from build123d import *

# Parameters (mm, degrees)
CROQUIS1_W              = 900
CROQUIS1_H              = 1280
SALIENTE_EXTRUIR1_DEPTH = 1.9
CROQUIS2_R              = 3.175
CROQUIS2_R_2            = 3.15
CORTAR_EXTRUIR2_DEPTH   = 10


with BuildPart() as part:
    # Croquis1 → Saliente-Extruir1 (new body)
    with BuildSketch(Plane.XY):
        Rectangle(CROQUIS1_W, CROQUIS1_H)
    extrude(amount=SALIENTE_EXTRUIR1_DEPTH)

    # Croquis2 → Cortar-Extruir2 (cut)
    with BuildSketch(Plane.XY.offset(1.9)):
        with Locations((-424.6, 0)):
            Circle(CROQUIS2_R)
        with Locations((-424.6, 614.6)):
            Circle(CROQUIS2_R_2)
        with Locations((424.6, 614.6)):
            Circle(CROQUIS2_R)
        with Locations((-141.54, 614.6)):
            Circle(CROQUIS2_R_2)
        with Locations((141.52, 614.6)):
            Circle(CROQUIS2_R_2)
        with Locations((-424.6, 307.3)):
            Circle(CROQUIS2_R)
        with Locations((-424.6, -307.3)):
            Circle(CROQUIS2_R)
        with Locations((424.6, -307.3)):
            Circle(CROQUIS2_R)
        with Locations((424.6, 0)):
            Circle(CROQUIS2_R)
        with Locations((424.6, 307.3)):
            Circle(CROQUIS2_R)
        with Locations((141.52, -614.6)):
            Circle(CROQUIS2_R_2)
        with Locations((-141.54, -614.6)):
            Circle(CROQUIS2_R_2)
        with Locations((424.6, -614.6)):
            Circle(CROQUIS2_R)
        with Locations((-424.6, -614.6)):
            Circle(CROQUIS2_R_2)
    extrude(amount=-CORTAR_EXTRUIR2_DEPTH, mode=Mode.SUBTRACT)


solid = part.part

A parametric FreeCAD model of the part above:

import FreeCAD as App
import Part
import Sketcher

V = App.Vector
Q = App.Units.Quantity


def add_polygon(sketch, points):
    """Adds a closed chain of lines whose ends are joined by coincident constraints."""
    first, n = sketch.GeometryCount, len(points)
    for a, b in zip(points, points[1:] + points[:1]):
        sketch.addGeometry(Part.LineSegment(App.Vector(*a, 0), App.Vector(*b, 0)), False)
    for i in range(n):
        sketch.addConstraint(Sketcher.Constraint("Coincident", first + i, 2, first + (i + 1) % n, 1))

doc = App.newDocument("Part")
body = doc.addObject("PartDesign::Body", "Body")

# Sketch on XY plane
sketch1 = doc.addObject("Sketcher::SketchObject", "Sketch")
body.addObject(sketch1)
sketch1.AttachmentSupport = (doc.XY_Plane, [""])
sketch1.MapMode = "FlatFace"
add_polygon(sketch1, [(-450, 640), (-450, -640), (450, -640), (450, 640)])  # lines 0-3
sketch1.addConstraint([
    Sketcher.Constraint("Vertical", 0),
    Sketcher.Constraint("Horizontal", 1),
    Sketcher.Constraint("Vertical", 2),
    Sketcher.Constraint("Horizontal", 3),
    Sketcher.Constraint("Symmetric", 0, 2, 2, 2, -1, 1),
    Sketcher.Constraint("DistanceX", 1, 1, 1, 2, Q("900 mm")),
    Sketcher.Constraint("DistanceY", 0, 2, 0, 1, Q("1280 mm")),
])
pad1 = doc.addObject("PartDesign::Pad", "Pad")
body.addObject(pad1)
pad1.Profile = sketch1
pad1.Length = 1.9

# Sketch on XY plane
sketch2 = doc.addObject("Sketcher::SketchObject", "Sketch001")
body.addObject(sketch2)
sketch2.AttachmentSupport = (doc.XY_Plane, [""])
sketch2.MapMode = "FlatFace"
sketch2.AttachmentOffset = App.Placement(V(0, 0, 1.9), App.Rotation())
sketch2.addGeometry([
    Part.Circle(V(-424.6, 0, 0), V(0, 0, 1), 3.2),  # 0
    Part.Circle(V(-424.6, 614.6, 0), V(0, 0, 1), 3.1),  # 1
    Part.Circle(V(424.6, 614.6, 0), V(0, 0, 1), 3.2),  # 2
    Part.Circle(V(-141.5, 614.6, 0), V(0, 0, 1), 3.1),  # 3
    Part.Circle(V(141.5, 614.6, 0), V(0, 0, 1), 3.1),  # 4
    Part.Circle(V(-424.6, 307.3, 0), V(0, 0, 1), 3.2),  # 5
    Part.Circle(V(-424.6, -307.3, 0), V(0, 0, 1), 3.2),  # 6
    Part.Circle(V(424.6, -307.3, 0), V(0, 0, 1), 3.2),  # 7
    Part.Circle(V(424.6, 0, 0), V(0, 0, 1), 3.2),  # 8
    Part.Circle(V(424.6, 307.3, 0), V(0, 0, 1), 3.2),  # 9
    Part.Circle(V(141.5, -614.6, 0), V(0, 0, 1), 3.1),  # 10
    Part.Circle(V(-141.5, -614.6, 0), V(0, 0, 1), 3.1),  # 11
    Part.Circle(V(424.6, -614.6, 0), V(0, 0, 1), 3.2),  # 12
    Part.Circle(V(-424.6, -614.6, 0), V(0, 0, 1), 3.1),  # 13
], False)
sketch2.addConstraint([
    Sketcher.Constraint("Equal", 0, 2),
    Sketcher.Constraint("Equal", 1, 3),
    Sketcher.Constraint("Equal", 3, 4),
    Sketcher.Constraint("Equal", 2, 5),
    Sketcher.Constraint("Equal", 5, 6),
    Sketcher.Constraint("Equal", 6, 7),
    Sketcher.Constraint("Equal", 7, 8),
    Sketcher.Constraint("Equal", 8, 9),
    Sketcher.Constraint("Equal", 4, 10),
    Sketcher.Constraint("Equal", 10, 11),
    Sketcher.Constraint("Equal", 9, 12),
    Sketcher.Constraint("Equal", 11, 13),
    Sketcher.Constraint("Symmetric", 5, 3, 7, 3, -1, 1),
    Sketcher.Constraint("Symmetric", 0, 3, 8, 3, -1, 1),
    Sketcher.Constraint("Symmetric", 6, 3, 9, 3, -1, 1),
    Sketcher.Constraint("Symmetric", 1, 3, 12, 3, -1, 1),
    Sketcher.Constraint("Symmetric", 2, 3, 13, 3, -1, 1),
    Sketcher.Constraint("Symmetric", 1, 3, 2, 3, -2),
    Sketcher.Constraint("Symmetric", 6, 3, 7, 3, -2),
    Sketcher.Constraint("Symmetric", 4, 3, 10, 3, -1),
    Sketcher.Constraint("Symmetric", 3, 3, 11, 3, -1),
    Sketcher.Constraint("PointOnObject", 0, 3, -1),
    Sketcher.Constraint("Horizontal", 2, 3, 3, 3),
    Sketcher.Constraint("Horizontal", 3, 3, 4, 3),
    Sketcher.Constraint("Vertical", 0, 3, 1, 3),
    Sketcher.Constraint("Vertical", 1, 3, 5, 3),
    Sketcher.Constraint("Diameter", 1, Q("6.3 mm")),
    Sketcher.Constraint("Diameter", 0, Q("6.35 mm")),
    Sketcher.Constraint("DistanceX", 0, 3, -1, 1, Q("424.6 mm")),
    Sketcher.Constraint("DistanceY", -1, 1, 1, 3, Q("614.6 mm")),
    Sketcher.Constraint("DistanceY", -1, 1, 5, 3, Q("307.3 mm")),
    Sketcher.Constraint("DistanceX", 3, 3, -1, 1, Q("141.54 mm")),
    Sketcher.Constraint("DistanceX", -1, 1, 4, 3, Q("141.52 mm")),
])
pocket1 = doc.addObject("PartDesign::Pocket", "Pocket")
body.addObject(pocket1)
pocket1.Profile = sketch2
pocket1.Length = 10

doc.recompute()
